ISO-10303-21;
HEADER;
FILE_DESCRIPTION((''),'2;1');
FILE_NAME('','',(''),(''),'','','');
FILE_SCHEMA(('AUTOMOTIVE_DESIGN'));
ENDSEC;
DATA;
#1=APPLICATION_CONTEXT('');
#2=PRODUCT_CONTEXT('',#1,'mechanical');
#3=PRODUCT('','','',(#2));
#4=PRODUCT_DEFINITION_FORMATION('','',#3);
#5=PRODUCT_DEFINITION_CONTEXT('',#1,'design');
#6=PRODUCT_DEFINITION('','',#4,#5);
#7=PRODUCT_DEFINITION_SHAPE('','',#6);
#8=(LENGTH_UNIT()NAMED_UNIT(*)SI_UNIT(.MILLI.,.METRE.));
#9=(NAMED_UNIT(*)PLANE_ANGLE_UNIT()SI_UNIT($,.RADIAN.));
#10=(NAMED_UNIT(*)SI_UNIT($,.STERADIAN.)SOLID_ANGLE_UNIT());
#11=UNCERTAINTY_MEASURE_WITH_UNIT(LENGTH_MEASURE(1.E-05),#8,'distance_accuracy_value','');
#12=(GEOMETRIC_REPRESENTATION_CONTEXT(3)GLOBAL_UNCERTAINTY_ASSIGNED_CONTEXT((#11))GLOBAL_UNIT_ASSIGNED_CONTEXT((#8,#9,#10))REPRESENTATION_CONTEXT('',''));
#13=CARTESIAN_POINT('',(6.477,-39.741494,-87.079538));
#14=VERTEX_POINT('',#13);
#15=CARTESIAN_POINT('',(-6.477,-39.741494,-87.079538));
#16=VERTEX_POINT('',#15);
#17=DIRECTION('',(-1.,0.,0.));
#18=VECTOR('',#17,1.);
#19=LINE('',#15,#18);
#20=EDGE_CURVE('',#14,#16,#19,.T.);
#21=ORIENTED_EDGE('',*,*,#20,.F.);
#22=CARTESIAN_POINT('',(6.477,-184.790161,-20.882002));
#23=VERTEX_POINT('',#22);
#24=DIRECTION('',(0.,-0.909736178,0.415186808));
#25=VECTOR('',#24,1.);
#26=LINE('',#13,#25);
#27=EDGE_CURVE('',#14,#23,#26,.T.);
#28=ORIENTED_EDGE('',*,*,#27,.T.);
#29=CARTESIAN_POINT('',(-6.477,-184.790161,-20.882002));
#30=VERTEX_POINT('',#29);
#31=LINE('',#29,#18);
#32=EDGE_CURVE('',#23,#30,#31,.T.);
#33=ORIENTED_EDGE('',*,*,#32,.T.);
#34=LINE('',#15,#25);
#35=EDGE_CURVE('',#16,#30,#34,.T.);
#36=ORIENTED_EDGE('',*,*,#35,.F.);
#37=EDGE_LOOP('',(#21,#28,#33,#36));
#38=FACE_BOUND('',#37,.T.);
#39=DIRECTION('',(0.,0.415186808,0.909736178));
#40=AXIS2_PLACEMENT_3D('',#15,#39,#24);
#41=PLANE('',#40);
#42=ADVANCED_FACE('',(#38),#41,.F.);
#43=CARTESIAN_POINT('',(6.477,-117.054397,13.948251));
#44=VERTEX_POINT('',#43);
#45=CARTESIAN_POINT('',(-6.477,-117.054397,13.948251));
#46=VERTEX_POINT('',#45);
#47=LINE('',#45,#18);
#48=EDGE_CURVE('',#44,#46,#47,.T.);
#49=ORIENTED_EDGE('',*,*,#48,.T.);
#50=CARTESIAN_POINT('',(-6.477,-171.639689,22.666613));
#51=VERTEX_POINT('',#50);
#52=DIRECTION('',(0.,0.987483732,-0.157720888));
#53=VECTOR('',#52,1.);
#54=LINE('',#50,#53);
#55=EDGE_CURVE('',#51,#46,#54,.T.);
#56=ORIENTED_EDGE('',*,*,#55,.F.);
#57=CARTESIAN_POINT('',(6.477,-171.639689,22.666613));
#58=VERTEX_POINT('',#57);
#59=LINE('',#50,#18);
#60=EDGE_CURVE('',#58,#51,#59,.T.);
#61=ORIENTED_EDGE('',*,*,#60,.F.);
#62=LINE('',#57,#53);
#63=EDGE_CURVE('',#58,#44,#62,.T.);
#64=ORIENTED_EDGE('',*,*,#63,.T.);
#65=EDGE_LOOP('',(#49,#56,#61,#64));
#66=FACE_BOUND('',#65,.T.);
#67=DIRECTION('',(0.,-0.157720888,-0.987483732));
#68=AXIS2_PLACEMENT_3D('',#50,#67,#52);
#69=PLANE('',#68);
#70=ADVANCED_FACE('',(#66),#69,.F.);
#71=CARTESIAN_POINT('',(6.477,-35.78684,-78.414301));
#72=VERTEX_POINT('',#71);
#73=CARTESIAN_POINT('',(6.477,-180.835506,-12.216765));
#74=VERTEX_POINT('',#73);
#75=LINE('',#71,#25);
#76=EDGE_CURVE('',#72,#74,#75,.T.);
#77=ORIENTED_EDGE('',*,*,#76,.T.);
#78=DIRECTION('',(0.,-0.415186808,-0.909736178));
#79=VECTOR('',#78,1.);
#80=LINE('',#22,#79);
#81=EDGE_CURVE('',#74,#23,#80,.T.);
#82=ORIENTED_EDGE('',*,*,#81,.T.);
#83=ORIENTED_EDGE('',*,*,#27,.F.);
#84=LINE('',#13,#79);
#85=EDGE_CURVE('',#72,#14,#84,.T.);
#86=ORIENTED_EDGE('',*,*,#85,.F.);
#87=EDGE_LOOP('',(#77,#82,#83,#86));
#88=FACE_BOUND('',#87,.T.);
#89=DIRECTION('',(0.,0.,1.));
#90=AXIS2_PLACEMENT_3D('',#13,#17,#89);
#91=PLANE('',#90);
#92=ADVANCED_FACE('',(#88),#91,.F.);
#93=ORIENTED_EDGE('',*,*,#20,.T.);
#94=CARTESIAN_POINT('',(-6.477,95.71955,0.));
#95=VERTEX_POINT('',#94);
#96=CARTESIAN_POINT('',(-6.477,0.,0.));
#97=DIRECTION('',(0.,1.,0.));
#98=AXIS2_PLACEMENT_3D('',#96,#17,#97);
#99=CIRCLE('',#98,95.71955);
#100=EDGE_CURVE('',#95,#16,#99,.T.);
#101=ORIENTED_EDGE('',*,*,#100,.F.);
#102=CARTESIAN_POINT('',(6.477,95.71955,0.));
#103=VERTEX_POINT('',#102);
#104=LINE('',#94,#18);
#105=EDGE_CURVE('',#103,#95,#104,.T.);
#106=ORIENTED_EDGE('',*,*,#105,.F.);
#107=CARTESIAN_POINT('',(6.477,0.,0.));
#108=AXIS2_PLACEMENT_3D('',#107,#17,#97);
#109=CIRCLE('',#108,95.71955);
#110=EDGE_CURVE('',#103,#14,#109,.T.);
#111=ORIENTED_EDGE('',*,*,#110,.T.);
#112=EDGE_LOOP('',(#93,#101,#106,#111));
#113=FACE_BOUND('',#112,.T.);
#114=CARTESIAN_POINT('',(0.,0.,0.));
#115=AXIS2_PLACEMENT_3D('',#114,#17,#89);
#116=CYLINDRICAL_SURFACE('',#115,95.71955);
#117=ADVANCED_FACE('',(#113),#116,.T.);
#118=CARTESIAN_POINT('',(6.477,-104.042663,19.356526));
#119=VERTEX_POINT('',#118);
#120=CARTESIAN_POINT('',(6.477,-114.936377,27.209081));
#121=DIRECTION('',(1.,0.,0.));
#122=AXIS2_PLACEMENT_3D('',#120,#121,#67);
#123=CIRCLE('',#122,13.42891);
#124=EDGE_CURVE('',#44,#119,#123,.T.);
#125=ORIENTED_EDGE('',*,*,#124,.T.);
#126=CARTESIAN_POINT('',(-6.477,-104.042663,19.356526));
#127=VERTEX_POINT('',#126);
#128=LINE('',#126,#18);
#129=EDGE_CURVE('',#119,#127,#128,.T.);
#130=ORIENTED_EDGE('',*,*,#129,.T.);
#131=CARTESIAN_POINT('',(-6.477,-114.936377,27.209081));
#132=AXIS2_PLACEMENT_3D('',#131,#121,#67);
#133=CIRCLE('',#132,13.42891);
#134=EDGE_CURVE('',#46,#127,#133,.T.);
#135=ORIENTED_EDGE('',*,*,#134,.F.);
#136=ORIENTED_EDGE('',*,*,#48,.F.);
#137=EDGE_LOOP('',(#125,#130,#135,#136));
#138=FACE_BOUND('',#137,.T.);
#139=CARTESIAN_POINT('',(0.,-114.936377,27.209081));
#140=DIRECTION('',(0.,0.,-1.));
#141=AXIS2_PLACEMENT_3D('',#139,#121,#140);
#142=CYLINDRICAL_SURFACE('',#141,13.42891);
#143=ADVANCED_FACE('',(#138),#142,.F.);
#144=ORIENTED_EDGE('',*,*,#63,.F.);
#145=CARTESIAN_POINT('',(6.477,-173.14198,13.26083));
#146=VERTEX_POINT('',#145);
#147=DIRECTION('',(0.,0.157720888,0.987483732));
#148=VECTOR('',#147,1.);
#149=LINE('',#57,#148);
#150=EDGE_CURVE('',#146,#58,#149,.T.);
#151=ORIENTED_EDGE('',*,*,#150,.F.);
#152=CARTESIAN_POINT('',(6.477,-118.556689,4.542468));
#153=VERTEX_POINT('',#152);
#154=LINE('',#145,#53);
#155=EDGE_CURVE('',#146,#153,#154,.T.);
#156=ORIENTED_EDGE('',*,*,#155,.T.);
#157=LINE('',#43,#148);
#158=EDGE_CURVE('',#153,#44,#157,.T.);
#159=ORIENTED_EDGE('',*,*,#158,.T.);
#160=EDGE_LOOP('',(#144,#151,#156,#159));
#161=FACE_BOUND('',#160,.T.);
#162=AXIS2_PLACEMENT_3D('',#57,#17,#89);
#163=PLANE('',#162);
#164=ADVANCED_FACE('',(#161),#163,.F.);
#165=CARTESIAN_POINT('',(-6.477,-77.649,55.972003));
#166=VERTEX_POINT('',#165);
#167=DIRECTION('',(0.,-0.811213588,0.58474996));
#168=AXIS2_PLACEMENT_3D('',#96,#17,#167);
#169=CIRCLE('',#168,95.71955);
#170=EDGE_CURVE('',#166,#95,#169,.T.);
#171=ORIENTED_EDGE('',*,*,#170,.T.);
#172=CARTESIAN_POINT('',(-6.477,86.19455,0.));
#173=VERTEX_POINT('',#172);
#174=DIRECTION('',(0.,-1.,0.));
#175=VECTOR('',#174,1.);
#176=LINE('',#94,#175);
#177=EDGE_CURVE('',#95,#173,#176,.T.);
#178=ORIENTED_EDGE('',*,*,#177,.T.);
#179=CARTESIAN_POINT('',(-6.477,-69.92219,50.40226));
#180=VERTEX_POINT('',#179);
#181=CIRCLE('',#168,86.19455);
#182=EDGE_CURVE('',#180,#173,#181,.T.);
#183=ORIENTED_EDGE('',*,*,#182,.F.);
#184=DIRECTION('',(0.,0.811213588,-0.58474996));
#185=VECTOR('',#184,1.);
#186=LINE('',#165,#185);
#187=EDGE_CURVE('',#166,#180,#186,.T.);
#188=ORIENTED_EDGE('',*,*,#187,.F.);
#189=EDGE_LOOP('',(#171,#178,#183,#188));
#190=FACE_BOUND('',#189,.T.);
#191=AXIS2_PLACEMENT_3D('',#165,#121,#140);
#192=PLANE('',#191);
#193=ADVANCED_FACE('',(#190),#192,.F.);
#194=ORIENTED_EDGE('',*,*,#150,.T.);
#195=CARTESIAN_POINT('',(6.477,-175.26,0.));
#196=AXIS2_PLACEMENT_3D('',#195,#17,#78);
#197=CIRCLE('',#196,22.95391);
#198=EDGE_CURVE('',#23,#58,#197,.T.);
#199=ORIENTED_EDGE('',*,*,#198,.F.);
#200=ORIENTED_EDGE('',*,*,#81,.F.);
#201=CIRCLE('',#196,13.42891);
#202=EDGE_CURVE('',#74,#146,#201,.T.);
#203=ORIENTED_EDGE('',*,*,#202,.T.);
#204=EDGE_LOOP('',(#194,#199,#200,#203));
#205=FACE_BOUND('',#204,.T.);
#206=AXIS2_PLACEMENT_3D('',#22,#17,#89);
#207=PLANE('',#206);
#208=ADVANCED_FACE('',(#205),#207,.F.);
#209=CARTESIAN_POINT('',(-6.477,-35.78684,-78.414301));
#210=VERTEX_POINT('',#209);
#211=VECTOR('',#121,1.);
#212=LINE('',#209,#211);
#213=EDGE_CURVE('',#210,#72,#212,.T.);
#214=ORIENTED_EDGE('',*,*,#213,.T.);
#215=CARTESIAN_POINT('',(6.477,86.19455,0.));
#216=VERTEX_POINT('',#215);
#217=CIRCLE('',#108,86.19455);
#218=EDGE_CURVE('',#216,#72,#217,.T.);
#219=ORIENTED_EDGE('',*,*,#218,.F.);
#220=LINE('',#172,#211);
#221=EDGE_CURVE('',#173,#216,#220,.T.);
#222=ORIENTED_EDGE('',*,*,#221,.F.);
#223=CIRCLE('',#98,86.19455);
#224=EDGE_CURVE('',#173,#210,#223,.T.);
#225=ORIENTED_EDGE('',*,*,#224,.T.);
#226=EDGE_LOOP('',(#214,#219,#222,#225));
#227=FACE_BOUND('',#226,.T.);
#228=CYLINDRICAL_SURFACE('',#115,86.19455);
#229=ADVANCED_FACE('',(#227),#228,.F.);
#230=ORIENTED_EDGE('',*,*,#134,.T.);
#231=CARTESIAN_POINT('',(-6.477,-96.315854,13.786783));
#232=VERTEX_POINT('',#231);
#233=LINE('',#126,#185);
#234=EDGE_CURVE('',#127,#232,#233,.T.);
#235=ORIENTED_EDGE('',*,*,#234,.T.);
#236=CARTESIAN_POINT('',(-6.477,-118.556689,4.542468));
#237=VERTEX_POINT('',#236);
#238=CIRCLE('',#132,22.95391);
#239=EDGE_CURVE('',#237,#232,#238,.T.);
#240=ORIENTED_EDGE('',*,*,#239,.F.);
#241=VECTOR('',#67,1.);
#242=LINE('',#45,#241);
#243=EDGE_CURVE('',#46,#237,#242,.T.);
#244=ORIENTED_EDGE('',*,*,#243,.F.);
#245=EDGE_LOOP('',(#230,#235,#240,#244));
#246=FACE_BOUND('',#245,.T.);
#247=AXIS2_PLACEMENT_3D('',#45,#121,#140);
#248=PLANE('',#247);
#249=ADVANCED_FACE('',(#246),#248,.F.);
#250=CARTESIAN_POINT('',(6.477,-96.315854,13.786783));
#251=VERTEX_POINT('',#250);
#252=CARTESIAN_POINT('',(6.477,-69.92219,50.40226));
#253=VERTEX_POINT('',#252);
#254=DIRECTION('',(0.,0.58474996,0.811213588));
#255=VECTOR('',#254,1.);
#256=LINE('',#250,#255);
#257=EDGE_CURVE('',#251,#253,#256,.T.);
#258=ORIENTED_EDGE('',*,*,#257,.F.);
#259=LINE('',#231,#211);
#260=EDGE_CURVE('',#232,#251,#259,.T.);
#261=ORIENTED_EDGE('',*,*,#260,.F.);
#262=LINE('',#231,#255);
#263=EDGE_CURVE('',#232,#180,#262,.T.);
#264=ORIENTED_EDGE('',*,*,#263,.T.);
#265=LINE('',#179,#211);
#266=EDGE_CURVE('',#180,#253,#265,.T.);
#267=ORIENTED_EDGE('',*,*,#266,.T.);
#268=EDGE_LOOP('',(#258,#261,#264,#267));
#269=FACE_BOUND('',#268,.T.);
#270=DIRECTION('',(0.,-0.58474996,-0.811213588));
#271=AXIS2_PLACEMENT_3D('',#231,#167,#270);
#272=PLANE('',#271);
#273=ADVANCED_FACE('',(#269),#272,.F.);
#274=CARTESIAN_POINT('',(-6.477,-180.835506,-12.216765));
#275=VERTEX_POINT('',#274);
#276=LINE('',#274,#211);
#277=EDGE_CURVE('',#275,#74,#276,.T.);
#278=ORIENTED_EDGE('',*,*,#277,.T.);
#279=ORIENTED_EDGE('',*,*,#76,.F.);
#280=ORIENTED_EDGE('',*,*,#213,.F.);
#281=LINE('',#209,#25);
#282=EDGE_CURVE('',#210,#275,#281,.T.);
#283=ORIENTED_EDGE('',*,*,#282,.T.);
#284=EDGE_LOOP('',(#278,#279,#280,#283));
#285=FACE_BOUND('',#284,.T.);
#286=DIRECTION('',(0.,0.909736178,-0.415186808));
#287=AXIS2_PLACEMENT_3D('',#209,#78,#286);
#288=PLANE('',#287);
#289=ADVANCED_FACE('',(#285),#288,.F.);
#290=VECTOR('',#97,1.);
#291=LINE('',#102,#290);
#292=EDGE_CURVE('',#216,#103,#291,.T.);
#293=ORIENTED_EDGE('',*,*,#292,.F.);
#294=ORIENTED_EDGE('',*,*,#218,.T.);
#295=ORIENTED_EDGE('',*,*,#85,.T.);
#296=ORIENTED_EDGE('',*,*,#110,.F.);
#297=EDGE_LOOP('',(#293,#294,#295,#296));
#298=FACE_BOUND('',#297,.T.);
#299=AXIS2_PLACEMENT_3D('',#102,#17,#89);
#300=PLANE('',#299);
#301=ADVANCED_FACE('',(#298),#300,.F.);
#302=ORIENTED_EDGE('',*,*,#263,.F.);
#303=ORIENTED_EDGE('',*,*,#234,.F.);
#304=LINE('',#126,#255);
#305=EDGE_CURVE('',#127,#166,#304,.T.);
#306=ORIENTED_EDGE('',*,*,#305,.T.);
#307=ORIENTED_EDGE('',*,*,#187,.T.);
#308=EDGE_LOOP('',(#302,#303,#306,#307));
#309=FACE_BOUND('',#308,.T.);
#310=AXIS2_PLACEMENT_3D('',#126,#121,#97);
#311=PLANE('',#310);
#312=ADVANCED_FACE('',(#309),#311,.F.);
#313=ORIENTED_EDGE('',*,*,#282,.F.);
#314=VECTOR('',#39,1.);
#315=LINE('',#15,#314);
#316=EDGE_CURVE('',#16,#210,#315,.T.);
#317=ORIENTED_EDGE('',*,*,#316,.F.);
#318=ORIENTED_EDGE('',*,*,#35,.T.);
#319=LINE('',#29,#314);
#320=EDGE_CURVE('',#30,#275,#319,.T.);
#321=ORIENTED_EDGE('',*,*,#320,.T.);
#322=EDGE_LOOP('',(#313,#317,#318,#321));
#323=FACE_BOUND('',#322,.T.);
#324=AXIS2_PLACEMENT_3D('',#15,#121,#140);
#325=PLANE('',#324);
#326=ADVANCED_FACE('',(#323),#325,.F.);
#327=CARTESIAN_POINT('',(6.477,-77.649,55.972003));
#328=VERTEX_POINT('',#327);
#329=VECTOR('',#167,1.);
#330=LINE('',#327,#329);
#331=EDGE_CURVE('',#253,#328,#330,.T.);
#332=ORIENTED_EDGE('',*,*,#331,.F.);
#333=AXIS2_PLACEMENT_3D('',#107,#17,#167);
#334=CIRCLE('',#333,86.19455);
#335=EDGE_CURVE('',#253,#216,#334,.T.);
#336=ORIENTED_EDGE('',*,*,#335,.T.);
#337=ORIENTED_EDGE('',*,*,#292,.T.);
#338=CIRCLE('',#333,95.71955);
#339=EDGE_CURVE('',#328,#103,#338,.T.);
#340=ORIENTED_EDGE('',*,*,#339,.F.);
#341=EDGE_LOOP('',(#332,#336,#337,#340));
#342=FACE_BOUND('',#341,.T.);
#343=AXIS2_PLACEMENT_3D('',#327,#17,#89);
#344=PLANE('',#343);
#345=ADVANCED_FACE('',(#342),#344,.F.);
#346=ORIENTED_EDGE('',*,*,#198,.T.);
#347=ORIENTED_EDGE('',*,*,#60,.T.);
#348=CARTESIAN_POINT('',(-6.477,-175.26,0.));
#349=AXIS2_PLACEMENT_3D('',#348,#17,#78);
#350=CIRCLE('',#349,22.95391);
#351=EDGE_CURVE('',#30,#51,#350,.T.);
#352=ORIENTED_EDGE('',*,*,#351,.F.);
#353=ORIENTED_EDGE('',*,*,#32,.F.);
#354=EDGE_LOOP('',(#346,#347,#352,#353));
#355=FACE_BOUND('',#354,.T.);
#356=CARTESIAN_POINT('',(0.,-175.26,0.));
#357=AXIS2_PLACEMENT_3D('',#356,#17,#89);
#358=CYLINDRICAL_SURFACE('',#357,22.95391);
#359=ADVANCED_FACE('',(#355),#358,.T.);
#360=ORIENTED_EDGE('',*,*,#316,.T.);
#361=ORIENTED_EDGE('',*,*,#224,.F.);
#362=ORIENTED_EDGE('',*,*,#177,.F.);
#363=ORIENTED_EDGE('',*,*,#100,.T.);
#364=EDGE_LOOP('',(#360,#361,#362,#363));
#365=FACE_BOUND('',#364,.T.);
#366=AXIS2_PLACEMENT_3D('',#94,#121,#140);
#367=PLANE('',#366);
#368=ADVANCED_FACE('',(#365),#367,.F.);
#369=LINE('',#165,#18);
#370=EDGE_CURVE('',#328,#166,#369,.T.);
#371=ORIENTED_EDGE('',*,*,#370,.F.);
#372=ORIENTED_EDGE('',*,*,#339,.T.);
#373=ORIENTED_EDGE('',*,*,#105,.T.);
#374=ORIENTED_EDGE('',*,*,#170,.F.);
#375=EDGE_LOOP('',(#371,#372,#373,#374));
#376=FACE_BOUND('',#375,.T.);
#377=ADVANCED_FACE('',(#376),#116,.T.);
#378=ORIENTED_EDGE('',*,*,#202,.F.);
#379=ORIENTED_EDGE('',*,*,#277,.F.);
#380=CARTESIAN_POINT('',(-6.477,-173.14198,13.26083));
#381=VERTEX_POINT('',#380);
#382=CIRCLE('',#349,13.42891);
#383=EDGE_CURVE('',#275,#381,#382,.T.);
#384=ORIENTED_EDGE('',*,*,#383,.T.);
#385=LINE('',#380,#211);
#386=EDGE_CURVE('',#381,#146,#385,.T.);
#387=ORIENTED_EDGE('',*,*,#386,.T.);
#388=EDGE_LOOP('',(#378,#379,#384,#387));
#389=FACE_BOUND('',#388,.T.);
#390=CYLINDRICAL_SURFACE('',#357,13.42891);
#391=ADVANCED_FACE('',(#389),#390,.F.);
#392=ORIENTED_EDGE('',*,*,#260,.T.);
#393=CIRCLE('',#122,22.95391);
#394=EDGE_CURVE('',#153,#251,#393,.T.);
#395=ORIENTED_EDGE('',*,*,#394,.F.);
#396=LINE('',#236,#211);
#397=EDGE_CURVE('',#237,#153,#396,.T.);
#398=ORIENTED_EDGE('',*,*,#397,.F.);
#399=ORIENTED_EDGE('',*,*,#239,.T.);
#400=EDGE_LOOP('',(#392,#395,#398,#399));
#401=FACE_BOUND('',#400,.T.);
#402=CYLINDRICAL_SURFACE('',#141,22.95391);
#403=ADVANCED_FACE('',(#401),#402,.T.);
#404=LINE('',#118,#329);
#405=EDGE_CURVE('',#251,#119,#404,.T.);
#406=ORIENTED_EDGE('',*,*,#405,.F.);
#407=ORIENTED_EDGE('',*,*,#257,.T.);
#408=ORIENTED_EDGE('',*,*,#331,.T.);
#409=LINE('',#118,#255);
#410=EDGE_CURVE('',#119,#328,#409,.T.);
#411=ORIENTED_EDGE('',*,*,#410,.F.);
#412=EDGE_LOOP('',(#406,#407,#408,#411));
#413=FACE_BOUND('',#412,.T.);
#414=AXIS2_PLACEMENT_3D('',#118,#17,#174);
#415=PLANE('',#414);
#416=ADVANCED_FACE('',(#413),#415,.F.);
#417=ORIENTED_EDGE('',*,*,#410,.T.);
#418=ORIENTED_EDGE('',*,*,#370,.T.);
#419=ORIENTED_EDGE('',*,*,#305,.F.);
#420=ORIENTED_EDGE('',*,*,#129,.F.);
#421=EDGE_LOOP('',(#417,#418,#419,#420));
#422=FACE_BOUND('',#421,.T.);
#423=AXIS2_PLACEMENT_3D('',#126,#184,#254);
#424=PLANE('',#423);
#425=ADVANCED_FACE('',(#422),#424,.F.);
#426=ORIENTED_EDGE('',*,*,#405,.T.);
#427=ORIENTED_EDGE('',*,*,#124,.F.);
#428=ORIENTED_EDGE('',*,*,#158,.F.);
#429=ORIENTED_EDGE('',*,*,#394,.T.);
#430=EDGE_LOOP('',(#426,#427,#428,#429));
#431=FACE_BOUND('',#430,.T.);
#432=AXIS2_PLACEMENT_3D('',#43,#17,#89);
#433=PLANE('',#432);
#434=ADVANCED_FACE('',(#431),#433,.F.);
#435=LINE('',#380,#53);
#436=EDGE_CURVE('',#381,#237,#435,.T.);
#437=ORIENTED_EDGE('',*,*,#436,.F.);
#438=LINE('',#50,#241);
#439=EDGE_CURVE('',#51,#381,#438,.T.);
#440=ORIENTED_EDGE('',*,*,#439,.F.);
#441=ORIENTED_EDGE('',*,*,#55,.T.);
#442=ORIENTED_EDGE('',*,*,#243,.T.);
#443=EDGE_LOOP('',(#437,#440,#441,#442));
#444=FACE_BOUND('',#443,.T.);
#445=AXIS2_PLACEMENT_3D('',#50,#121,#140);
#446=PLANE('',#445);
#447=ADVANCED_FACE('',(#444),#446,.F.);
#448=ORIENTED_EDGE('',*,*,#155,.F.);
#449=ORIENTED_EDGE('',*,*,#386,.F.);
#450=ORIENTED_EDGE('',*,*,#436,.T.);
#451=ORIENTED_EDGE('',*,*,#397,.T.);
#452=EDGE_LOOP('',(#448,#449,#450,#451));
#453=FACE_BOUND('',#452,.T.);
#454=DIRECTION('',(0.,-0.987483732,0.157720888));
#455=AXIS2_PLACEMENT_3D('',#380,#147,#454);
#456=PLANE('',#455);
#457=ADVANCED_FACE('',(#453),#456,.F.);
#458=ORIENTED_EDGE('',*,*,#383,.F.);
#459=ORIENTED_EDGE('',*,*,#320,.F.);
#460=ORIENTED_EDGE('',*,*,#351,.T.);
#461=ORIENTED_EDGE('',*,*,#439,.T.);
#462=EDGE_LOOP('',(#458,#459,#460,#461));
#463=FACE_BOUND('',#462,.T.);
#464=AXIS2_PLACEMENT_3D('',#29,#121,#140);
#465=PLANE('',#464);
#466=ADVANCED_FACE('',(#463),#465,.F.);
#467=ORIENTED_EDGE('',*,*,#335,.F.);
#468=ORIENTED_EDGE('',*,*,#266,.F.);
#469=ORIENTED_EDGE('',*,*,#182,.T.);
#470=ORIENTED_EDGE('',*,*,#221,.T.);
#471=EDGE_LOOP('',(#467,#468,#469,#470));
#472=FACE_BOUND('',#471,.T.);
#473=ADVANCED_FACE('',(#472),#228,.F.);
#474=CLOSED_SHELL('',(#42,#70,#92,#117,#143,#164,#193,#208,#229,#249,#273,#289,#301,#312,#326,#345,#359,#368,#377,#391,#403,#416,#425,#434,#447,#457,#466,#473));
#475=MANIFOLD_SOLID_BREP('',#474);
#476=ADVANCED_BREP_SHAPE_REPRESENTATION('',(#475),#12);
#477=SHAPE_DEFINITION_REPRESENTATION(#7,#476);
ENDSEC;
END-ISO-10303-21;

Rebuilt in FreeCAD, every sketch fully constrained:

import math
import FreeCAD as App
import Part
import Sketcher
Q = App.Units.Quantity


def add_polygon(sketch, points):
    """Adds a closed chain of lines whose ends are joined by coincident constraints."""
    first, n = sketch.GeometryCount, len(points)
    for a, b in zip(points, points[1:] + points[:1]):
        sketch.addGeometry(Part.LineSegment(App.Vector(*a, 0), App.Vector(*b, 0)), False)
    for i in range(n):
        sketch.addConstraint(Sketcher.Constraint("Coincident", first + i, 2, first + (i + 1) % n, 1))

doc = App.newDocument("Part")
body = doc.addObject("PartDesign::Body", "Body")

sketch1 = doc.addObject("Sketcher::SketchObject", "Sketch")
body.addObject(sketch1)
sketch1.AttachmentSupport = (doc.XY_Plane, [""])
sketch1.MapMode = "FlatFace"
add_polygon(sketch1, [(-6, 96), (-6, 86), (6, 86), (6, 96)])
sketch1.addConstraint([
    Sketcher.Constraint("Vertical", 0),
    Sketcher.Constraint("Horizontal", 1),
    Sketcher.Constraint("Vertical", 2),
    Sketcher.Constraint("Horizontal", 3),
    Sketcher.Constraint("DistanceX", 1, 1, 1, 2, Q("0.51 in")),
    Sketcher.Constraint("DistanceY", 0, 2, 0, 1, Q("0.375 in")),
    Sketcher.Constraint("DistanceX", 0, 2, -1, 1, Q("0.255 in")),
    Sketcher.Constraint("DistanceY", -1, 1, 0, 2, 86.19455),
])

sketch2 = doc.addObject("Sketcher::SketchObject", "Sketch001")
body.addObject(sketch2)
sketch2.AttachmentSupport = (doc.YZ_Plane, [""])
sketch2.MapMode = "FlatFace"
sketch2.addGeometry([
    Part.LineSegment(App.Vector(-183, -17, 0), App.Vector(-38, -83, 0)),
    Part.ArcOfCircle(Part.Circle(App.Vector(0, 0, 0), App.Vector(0, 0, 1), 91), math.radians(-115), math.radians(144)),
    Part.LineSegment(App.Vector(-74, 53, 0), App.Vector(-100, 17, 0)),
    Part.ArcOfCircle(Part.Circle(App.Vector(-115, 27, 0), App.Vector(0, 0, 1), 18), math.radians(-99), math.radians(-36)),
    Part.LineSegment(App.Vector(-118, 9, 0), App.Vector(-172, 18, 0)),
    Part.ArcOfCircle(Part.Circle(App.Vector(-175, 0, 0), App.Vector(0, 0, 1), 18), math.radians(81), math.radians(245)),
], False)
sketch2.addConstraint([
    Sketcher.Constraint("Tangent", 0, 2, 1, 1),
    Sketcher.Constraint("Tangent", 1, 2, 2, 1),
    Sketcher.Constraint("Tangent", 2, 2, 3, 2),
    Sketcher.Constraint("Tangent", 3, 1, 4, 1),
    Sketcher.Constraint("Tangent", 4, 2, 5, 1),
    Sketcher.Constraint("Tangent", 5, 2, 0, 1),
    Sketcher.Constraint("Coincident", 1, 3, -1, 1),
    Sketcher.Constraint("Equal", 3, 5),
    Sketcher.Constraint("PointOnObject", 5, 3, -1),
    Sketcher.Constraint("DistanceX", 5, 3, -1, 1, Q("6.9 in")),
    Sketcher.Constraint("Radius", 1, 90.95705),
    Sketcher.Constraint("Radius", 3, 18.19141),
    Sketcher.Constraint("DistanceY", 0, 2, 3, 3, 109.956),
    Sketcher.Constraint("DistanceY", -1, 1, 1, 2, 53.187131),
])
doc.recompute()

additivepipe = doc.addObject("PartDesign::AdditivePipe", "AdditivePipe")
body.addObject(additivepipe)
additivepipe.Profile = sketch1
additivepipe.Spine = (sketch2, ["Edge1", "Edge2", "Edge3", "Edge4", "Edge5", "Edge6"])

doc.recompute()
